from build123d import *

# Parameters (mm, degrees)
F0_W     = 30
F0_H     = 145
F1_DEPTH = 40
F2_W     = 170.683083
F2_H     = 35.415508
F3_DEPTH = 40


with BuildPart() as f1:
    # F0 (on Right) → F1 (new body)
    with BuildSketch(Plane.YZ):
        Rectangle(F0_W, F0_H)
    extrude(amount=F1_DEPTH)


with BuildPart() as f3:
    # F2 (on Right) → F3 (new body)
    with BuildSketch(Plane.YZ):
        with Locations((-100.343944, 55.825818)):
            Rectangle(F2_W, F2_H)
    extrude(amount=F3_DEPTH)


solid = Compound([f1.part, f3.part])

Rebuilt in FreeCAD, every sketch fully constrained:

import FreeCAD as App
import Part
import Sketcher
from FreeCAD import Vector


def add_polygon(sketch, points):
    """Adds a closed chain of lines whose ends are joined by coincident constraints."""
    first, n = sketch.GeometryCount, len(points)
    for a, b in zip(points, points[1:] + points[:1]):
        sketch.addGeometry(Part.LineSegment(App.Vector(*a, 0), App.Vector(*b, 0)), False)
    for i in range(n):
        sketch.addConstraint(Sketcher.Constraint("Coincident", first + i, 2, first + (i + 1) % n, 1))

doc = App.newDocument("Part")
body = doc.addObject("PartDesign::Body", "Body")

# Sketch on YZ plane
sketch1 = body.newObject("Sketcher::SketchObject", "Sketch")
sketch1.AttachmentSupport = (doc.getObject("YZ_Plane"), [""])
sketch1.MapMode = "FlatFace"
add_polygon(sketch1, [(-15, 72), (-15, -72), (15, -72), (15, 72)])  # lines 0-3
sketch1.addConstraint(Sketcher.Constraint("Vertical", 0))
sketch1.addConstraint(Sketcher.Constraint("Horizontal", 1))
sketch1.addConstraint(Sketcher.Constraint("Vertical", 2))
sketch1.addConstraint(Sketcher.Constraint("Horizontal", 3))
sketch1.addConstraint(Sketcher.Constraint("Symmetric", 0, 2, 2, 2, -1, 1))
sketch1.addConstraint(Sketcher.Constraint("DistanceX", 1, 1, 1, 2, 30.0))
sketch1.addConstraint(Sketcher.Constraint("DistanceY", 0, 2, 0, 1, 145.0))
pad1 = body.newObject("PartDesign::Pad", "Pad")
pad1.Profile = sketch1
pad1.Length = 40
body2 = doc.addObject("PartDesign::Body", "Body001")

# Sketch on YZ plane
sketch2 = body2.newObject("Sketcher::SketchObject", "Sketch001")
sketch2.AttachmentSupport = (doc.getObject("YZ_Plane001"), [""])
sketch2.MapMode = "FlatFace"
add_polygon(sketch2, [(-186, 74), (-186, 38), (-15, 38), (-15, 74)])  # lines 0-3
sketch2.addConstraint(Sketcher.Constraint("Vertical", 0))
sketch2.addConstraint(Sketcher.Constraint("Horizontal", 1))
sketch2.addConstraint(Sketcher.Constraint("Vertical", 2))
sketch2.addConstraint(Sketcher.Constraint("Horizontal", 3))
sketch2.addConstraint(Sketcher.Constraint("DistanceY", 0, 2, 0, 1, 35.415508))
sketch2.addConstraint(Sketcher.Constraint("DistanceX", 1, 1, 1, 2, 170.683083))
sketch2.addConstraint(Sketcher.Constraint("DistanceX", 0, 2, -1, 1, 185.685485))
sketch2.addConstraint(Sketcher.Constraint("DistanceY", -1, 1, 0, 2, 38.118064))
pad2 = body2.newObject("PartDesign::Pad", "Pad001")
pad2.Profile = sketch2
pad2.Length = 40

doc.recompute()
